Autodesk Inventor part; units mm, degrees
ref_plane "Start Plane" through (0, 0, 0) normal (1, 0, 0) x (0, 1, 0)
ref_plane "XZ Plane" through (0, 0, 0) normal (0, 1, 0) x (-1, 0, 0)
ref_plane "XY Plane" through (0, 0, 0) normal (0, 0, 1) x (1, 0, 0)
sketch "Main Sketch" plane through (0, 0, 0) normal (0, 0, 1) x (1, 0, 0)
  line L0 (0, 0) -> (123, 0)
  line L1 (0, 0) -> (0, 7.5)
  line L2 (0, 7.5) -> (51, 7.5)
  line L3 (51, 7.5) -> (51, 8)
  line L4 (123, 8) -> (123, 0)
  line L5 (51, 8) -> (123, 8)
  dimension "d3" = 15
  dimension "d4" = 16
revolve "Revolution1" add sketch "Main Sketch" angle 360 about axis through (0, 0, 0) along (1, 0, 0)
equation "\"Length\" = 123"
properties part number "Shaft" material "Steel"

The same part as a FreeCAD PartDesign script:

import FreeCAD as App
import Part
import Sketcher


def add_polygon(sketch, points):
    """Adds a closed chain of lines whose ends are joined by coincident constraints."""
    first, n = sketch.GeometryCount, len(points)
    for a, b in zip(points, points[1:] + points[:1]):
        sketch.addGeometry(Part.LineSegment(App.Vector(*a, 0), App.Vector(*b, 0)), False)
    for i in range(n):
        sketch.addConstraint(Sketcher.Constraint("Coincident", first + i, 2, first + (i + 1) % n, 1))

doc = App.newDocument("Part")
body = doc.addObject("PartDesign::Body", "Body")

# Sketch on XY plane
sketch1 = body.newObject("Sketcher::SketchObject", "Sketch")
sketch1.AttachmentSupport = (doc.getObject("XY_Plane"), [""])
sketch1.MapMode = "FlatFace"
add_polygon(sketch1, [(0, 7.5), (0, 0), (123, 0), (123, 8), (51, 8), (51, 7.5)])  # lines 0-5
sketch1.addConstraint([
    Sketcher.Constraint("Vertical", 0),
    Sketcher.Constraint("Horizontal", 1),
    Sketcher.Constraint("Vertical", 2),
    Sketcher.Constraint("Horizontal", 3),
    Sketcher.Constraint("Vertical", 4),
    Sketcher.Constraint("Horizontal", 5),
    Sketcher.Constraint("Coincident", 0, 2, -1, 1),
    Sketcher.Constraint("DistanceX", 1, 1, 1, 2, 123.0),
    Sketcher.Constraint("DistanceX", 3, 2, 3, 1, 72.0),
    Sketcher.Constraint("DistanceY", 2, 1, 2, 2, 8.0),
    Sketcher.Constraint("DistanceY", 0, 2, 0, 1, 7.5),
])
revolution = body.newObject("PartDesign::Revolution", "Revolution")
revolution.Profile = sketch1
revolution.ReferenceAxis = (sketch1, ["H_Axis"])
revolution.Angle = 360

doc.recompute()
